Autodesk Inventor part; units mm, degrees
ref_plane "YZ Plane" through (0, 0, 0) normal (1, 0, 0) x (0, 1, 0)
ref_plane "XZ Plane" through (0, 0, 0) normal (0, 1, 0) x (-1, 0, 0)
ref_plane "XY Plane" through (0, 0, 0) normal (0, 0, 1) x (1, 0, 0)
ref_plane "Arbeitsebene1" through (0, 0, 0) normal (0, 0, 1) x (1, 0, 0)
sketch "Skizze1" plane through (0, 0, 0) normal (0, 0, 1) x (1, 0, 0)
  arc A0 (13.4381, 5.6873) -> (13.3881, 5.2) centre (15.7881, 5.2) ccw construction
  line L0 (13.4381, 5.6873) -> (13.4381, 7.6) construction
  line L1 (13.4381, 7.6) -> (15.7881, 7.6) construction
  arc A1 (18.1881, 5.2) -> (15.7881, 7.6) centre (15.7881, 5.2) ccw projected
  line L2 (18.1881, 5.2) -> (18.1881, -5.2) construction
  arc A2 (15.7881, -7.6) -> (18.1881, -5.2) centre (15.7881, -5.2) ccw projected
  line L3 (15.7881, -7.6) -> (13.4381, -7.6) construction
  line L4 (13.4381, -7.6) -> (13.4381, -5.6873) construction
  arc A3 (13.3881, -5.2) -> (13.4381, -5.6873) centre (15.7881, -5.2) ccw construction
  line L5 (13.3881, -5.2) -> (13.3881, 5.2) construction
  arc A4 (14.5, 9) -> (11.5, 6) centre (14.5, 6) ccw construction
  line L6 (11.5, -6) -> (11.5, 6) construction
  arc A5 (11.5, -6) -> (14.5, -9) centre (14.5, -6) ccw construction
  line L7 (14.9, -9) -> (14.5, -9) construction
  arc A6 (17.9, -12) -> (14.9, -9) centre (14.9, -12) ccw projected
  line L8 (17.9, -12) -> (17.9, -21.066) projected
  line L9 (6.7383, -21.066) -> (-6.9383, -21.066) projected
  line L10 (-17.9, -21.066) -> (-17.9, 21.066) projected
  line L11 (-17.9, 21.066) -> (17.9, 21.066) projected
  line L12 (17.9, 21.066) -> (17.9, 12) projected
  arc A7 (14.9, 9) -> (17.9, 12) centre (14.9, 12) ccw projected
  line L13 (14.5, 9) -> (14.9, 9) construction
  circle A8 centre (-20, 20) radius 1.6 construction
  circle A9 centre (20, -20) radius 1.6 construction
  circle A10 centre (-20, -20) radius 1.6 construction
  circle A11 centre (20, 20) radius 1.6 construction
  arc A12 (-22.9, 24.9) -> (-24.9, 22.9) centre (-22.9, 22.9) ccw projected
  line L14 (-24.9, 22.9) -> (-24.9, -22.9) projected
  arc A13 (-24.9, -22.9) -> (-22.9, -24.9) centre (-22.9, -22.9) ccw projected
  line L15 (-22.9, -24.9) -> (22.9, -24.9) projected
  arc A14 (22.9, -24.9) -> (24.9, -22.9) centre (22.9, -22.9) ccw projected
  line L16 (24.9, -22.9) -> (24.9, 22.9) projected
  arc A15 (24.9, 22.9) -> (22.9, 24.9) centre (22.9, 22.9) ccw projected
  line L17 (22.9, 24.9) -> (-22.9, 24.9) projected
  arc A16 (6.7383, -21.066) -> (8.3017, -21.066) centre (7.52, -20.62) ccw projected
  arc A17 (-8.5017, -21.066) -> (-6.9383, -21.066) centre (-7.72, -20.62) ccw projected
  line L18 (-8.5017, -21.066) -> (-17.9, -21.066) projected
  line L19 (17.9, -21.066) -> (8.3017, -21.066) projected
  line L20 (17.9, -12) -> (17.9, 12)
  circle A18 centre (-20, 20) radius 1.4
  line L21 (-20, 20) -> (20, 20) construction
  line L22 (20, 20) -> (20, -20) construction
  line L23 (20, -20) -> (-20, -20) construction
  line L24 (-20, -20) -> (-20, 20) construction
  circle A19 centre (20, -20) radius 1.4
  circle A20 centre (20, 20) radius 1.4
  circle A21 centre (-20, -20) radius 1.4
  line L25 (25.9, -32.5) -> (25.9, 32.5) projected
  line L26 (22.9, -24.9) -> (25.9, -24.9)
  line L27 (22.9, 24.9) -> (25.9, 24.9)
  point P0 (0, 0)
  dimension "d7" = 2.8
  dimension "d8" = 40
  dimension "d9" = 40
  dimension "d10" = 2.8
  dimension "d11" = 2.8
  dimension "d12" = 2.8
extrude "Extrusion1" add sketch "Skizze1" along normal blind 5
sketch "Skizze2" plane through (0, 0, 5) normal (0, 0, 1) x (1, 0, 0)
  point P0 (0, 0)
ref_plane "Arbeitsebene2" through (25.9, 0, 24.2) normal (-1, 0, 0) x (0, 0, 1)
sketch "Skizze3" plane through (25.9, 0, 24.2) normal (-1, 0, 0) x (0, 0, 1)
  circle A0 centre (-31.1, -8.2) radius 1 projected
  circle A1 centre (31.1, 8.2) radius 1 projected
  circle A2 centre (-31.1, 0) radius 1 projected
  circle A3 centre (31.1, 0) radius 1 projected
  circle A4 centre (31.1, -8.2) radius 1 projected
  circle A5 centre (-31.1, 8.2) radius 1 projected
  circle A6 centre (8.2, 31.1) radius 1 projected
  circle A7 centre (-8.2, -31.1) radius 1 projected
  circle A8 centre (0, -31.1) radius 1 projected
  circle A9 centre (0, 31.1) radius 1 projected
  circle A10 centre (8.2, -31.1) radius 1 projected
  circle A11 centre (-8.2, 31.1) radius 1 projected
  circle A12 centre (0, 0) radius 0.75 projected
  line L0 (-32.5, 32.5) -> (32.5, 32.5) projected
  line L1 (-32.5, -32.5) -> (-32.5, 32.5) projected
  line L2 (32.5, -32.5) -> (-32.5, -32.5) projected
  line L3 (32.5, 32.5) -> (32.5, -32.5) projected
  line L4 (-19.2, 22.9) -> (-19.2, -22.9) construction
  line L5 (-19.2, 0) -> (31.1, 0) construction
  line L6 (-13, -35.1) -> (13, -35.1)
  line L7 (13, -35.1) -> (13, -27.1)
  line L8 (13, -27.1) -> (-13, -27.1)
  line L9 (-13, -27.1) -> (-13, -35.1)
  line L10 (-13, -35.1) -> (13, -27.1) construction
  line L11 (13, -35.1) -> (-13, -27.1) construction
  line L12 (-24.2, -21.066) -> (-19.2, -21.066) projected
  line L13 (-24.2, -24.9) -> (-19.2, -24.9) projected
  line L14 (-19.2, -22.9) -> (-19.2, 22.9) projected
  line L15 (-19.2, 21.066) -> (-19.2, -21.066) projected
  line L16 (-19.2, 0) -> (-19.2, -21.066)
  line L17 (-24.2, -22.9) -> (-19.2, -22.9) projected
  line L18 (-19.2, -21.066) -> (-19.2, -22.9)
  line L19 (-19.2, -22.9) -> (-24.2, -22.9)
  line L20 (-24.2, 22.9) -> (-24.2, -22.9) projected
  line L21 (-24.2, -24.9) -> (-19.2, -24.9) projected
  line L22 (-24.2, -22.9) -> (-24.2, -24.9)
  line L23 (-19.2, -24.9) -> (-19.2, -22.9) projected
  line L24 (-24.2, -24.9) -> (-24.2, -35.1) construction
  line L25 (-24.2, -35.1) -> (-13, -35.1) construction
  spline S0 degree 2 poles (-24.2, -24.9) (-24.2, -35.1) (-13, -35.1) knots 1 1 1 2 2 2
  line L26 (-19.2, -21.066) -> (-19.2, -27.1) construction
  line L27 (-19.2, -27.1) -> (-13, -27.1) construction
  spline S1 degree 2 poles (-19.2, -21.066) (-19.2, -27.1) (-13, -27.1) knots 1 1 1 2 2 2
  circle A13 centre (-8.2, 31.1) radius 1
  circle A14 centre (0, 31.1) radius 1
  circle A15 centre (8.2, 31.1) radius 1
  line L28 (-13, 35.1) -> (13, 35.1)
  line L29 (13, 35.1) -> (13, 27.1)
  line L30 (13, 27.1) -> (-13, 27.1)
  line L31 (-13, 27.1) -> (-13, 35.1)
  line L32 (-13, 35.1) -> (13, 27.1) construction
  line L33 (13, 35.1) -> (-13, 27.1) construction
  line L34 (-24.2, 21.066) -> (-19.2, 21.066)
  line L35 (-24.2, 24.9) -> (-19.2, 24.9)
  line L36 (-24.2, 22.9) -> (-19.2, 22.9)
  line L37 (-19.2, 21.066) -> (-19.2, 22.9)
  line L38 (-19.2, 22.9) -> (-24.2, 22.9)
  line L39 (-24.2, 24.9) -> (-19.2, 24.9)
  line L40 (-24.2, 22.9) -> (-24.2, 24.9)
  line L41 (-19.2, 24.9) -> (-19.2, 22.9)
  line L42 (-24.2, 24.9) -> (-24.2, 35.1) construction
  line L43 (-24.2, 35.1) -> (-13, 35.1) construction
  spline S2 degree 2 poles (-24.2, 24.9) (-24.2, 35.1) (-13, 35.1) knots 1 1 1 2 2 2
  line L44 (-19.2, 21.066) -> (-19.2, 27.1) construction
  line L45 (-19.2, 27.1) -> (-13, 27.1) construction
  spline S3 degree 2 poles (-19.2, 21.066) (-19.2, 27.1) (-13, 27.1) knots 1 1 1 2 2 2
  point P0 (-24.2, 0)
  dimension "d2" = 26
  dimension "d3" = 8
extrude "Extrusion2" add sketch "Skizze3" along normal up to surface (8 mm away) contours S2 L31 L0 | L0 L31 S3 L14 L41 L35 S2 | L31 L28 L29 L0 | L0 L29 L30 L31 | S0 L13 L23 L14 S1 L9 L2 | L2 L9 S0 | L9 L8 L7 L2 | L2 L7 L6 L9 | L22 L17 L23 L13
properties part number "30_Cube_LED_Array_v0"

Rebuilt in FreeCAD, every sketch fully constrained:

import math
import FreeCAD as App
import Part
import Sketcher

doc = App.newDocument("Part")
params = doc.addObject("Spreadsheet::Sheet", "Params")
for row, (alias, value) in enumerate([
    ("sketch1_diameter", "2.8 mm"),
    ("sketch1_radius", "2 mm"),
    ("sketch1_radius2", "0.9 mm"),
    ("sketch1_width", "48.8 mm"),
    ("sketch1_width2", "35.8 mm"),
    ("pad1_length", "5 mm"),
    ("sketch2_height", "26 mm"),
    ("sketch2_diameter", "2 mm"),
    ("sketch2_width", "2 mm"),
    ("pad2_length", "8 mm"),
], start=1):
    params.set(f"A{row}", alias)
    params.set(f"B{row}", "=" + value)
    params.setAlias(f"B{row}", alias)

body = doc.addObject("PartDesign::Body", "Body")

# Sketch on XY plane
sketch1 = body.newObject("Sketcher::SketchObject", "Sketch")
sketch1.AttachmentSupport = (doc.getObject("XY_Plane"), [""])
sketch1.MapMode = "FlatFace"
sketch1.addGeometry(Part.ArcOfCircle(Part.Circle(App.Vector(-22.9, 22.9, 0), App.Vector(0, 0, 1), 2), math.radians(90), math.radians(180)), False)
sketch1.addGeometry(Part.LineSegment(App.Vector(-24.9, 22.9, 0), App.Vector(-24.9, -22.9, 0)), False)
sketch1.addGeometry(Part.ArcOfCircle(Part.Circle(App.Vector(-22.9, -22.9, 0), App.Vector(0, 0, 1), 2), math.radians(180), math.radians(270)), False)
sketch1.addGeometry(Part.LineSegment(App.Vector(-22.9, -24.9, 0), App.Vector(25.9, -24.9, 0)), False)
sketch1.addGeometry(Part.LineSegment(App.Vector(25.9, -24.9, 0), App.Vector(25.9, 24.9, 0)), False)
sketch1.addGeometry(Part.LineSegment(App.Vector(25.9, 24.9, 0), App.Vector(-22.9, 24.9, 0)), False)
sketch1.addGeometry(Part.Circle(App.Vector(-20, -20, 0), App.Vector(0, 0, 1), 1.4), False)
sketch1.addGeometry(Part.LineSegment(App.Vector(17.9, -21.1, 0), App.Vector(8.3, -21.1, 0)), False)
sketch1.addGeometry(Part.ArcOfCircle(Part.Circle(App.Vector(7.5, -20.6, 0), App.Vector(0, 0, 1), 0.9), math.radians(-150), math.radians(-30)), False)
sketch1.addGeometry(Part.LineSegment(App.Vector(6.7, -21.1, 0), App.Vector(-6.9, -21.1, 0)), False)
sketch1.addGeometry(Part.ArcOfCircle(Part.Circle(App.Vector(-7.7, -20.6, 0), App.Vector(0, 0, 1), 0.9), math.radians(-150), math.radians(-30)), False)
sketch1.addGeometry(Part.LineSegment(App.Vector(-8.5, -21.1, 0), App.Vector(-17.9, -21.1, 0)), False)
sketch1.addGeometry(Part.LineSegment(App.Vector(-17.9, -21.1, 0), App.Vector(-17.9, 21.1, 0)), False)
sketch1.addGeometry(Part.LineSegment(App.Vector(-17.9, 21.1, 0), App.Vector(17.9, 21.1, 0)), False)
sketch1.addGeometry(Part.LineSegment(App.Vector(17.9, 21.1, 0), App.Vector(17.9, -21.1, 0)), False)
sketch1.addGeometry(Part.Circle(App.Vector(20, -20, 0), App.Vector(0, 0, 1), 1.4), False)
sketch1.addGeometry(Part.Circle(App.Vector(-20, 20, 0), App.Vector(0, 0, 1), 1.4), False)
sketch1.addGeometry(Part.Circle(App.Vector(20, 20, 0), App.Vector(0, 0, 1), 1.4), False)
sketch1.addConstraint(Sketcher.Constraint("Tangent", 0, 2, 1, 1))
sketch1.addConstraint(Sketcher.Constraint("Tangent", 1, 2, 2, 1))
sketch1.addConstraint(Sketcher.Constraint("Tangent", 2, 2, 3, 1))
sketch1.addConstraint(Sketcher.Constraint("Coincident", 3, 2, 4, 1))
sketch1.addConstraint(Sketcher.Constraint("Coincident", 4, 2, 5, 1))
sketch1.addConstraint(Sketcher.Constraint("Tangent", 5, 2, 0, 1))
sketch1.addConstraint(Sketcher.Constraint("Coincident", 7, 2, 8, 2))
sketch1.addConstraint(Sketcher.Constraint("Coincident", 8, 1, 9, 1))
sketch1.addConstraint(Sketcher.Constraint("Coincident", 9, 2, 10, 2))
sketch1.addConstraint(Sketcher.Constraint("Coincident", 10, 1, 11, 1))
sketch1.addConstraint(Sketcher.Constraint("Coincident", 11, 2, 12, 1))
sketch1.addConstraint(Sketcher.Constraint("Coincident", 12, 2, 13, 1))
sketch1.addConstraint(Sketcher.Constraint("Coincident", 13, 2, 14, 1))
sketch1.addConstraint(Sketcher.Constraint("Coincident", 14, 2, 7, 1))
sketch1.addConstraint(Sketcher.Constraint("Vertical", 1))
sketch1.addConstraint(Sketcher.Constraint("Horizontal", 3))
sketch1.addConstraint(Sketcher.Constraint("Vertical", 4))
sketch1.addConstraint(Sketcher.Constraint("Horizontal", 5))
sketch1.addConstraint(Sketcher.Constraint("Horizontal", 7))
sketch1.addConstraint(Sketcher.Constraint("Horizontal", 9))
sketch1.addConstraint(Sketcher.Constraint("Horizontal", 11))
sketch1.addConstraint(Sketcher.Constraint("Vertical", 12))
sketch1.addConstraint(Sketcher.Constraint("Horizontal", 13))
sketch1.addConstraint(Sketcher.Constraint("Vertical", 14))
sketch1.addConstraint(Sketcher.Constraint("Equal", 0, 2))
sketch1.addConstraint(Sketcher.Constraint("Equal", 8, 10))
sketch1.addConstraint(Sketcher.Constraint("Equal", 6, 15))
sketch1.addConstraint(Sketcher.Constraint("Equal", 15, 16))
sketch1.addConstraint(Sketcher.Constraint("Equal", 16, 17))
sketch1.addConstraint(Sketcher.Constraint("Symmetric", 15, 3, 16, 3, -1, 1))
sketch1.addConstraint(Sketcher.Constraint("Symmetric", 6, 3, 17, 3, -1, 1))
sketch1.addConstraint(Sketcher.Constraint("Symmetric", 11, 2, 13, 2, -1, 1))
sketch1.addConstraint(Sketcher.Constraint("Symmetric", 6, 3, 15, 3, -2))
sketch1.addConstraint(Sketcher.Constraint("Horizontal", 8, 3, 10, 3))
sketch1.addConstraint(Sketcher.Constraint("Horizontal", 7, 2, 8, 1))
sketch1.addConstraint(Sketcher.Constraint("Horizontal", 9, 2, 10, 1))
sketch1.addConstraint(Sketcher.Constraint("Diameter", 6, 2.8))
sketch1.addConstraint(Sketcher.Constraint("Radius", 0, 2.0))
sketch1.addConstraint(Sketcher.Constraint("DistanceX", 6, 3, 15, 3, 40.0))
sketch1.addConstraint(Sketcher.Constraint("DistanceY", 6, 3, 16, 3, 40.0))
sketch1.addConstraint(Sketcher.Constraint("Radius", 8, 0.9))
sketch1.addConstraint(Sketcher.Constraint("DistanceX", 3, 1, 3, 2, 48.8))
sketch1.addConstraint(Sketcher.Constraint("DistanceX", 13, 1, 13, 2, 35.8))
sketch1.addConstraint(Sketcher.Constraint("DistanceY", 1, 2, 1, 1, 45.8))
sketch1.addConstraint(Sketcher.Constraint("DistanceX", 2, 3, 11, 2, 5.0))
sketch1.addConstraint(Sketcher.Constraint("DistanceY", -1, 1, 0, 3, 22.9))
sketch1.addConstraint(Sketcher.Constraint("DistanceY", 12, 1, 12, 2, 42.132))
sketch1.addConstraint(Sketcher.Constraint("DistanceX", -1, 1, 8, 3, 7.52))
sketch1.addConstraint(Sketcher.Constraint("DistanceY", 8, 3, -1, 1, 20.62))
sketch1.addConstraint(Sketcher.Constraint("DistanceX", 10, 3, -1, 1, 7.72))
sketch1.setExpression("Constraints[36]", "Params.sketch1_diameter")
sketch1.setExpression("Constraints[37]", "Params.sketch1_radius")
sketch1.setExpression("Constraints[40]", "Params.sketch1_radius2")
sketch1.setExpression("Constraints[41]", "Params.sketch1_width")
sketch1.setExpression("Constraints[42]", "Params.sketch1_width2")
pad1 = body.newObject("PartDesign::Pad", "Pad")
pad1.Profile = sketch1
pad1.setExpression("Length", "Params.pad1_length")

# Sketch on YZ plane
sketch2 = body.newObject("Sketcher::SketchObject", "Sketch001")
sketch2.AttachmentSupport = (doc.getObject("YZ_Plane"), [""])
sketch2.MapMode = "FlatFace"
sketch2.AttachmentOffset = App.Placement(App.Vector(0, 0, 25.9), App.Rotation())
sketch2.addGeometry(Part.BSplineCurve([App.Vector(32.5, 2.745631, 0), App.Vector(35.1, 5.545365, 0), App.Vector(35.1, 11.2, 0)], [3, 3], [1.495121836, 2], False, 2, [1, 1, 1], False), False)
sketch2.addGeometry(Part.BSplineCurve([App.Vector(24.9, 0, 0), App.Vector(29.950243, 0, 0), App.Vector(32.5, 2.745631, 0)], [3, 3], [1, 1.495121836], False, 2, [1, 1, 1], False), False)
sketch2.addGeometry(Part.LineSegment(App.Vector(24.9, 0, 0), App.Vector(24.9, 5, 0)), False)
sketch2.addGeometry(Part.LineSegment(App.Vector(24.9, 5, 0), App.Vector(21.066, 5, 0)), False)
sketch2.addGeometry(Part.BSplineCurve([App.Vector(21.066, 5, 0), App.Vector(27.1, 5, 0), App.Vector(27.1, 11.2, 0)], [3, 3], [1, 2], False, 2, [1, 1, 1], False), False)
sketch2.addGeometry(Part.LineSegment(App.Vector(27.1, 11.2, 0), App.Vector(27.1, 37.2, 0)), False)
sketch2.addGeometry(Part.LineSegment(App.Vector(27.1, 37.2, 0), App.Vector(35.1, 37.2, 0)), False)
sketch2.addGeometry(Part.LineSegment(App.Vector(35.1, 37.2, 0), App.Vector(35.1, 11.2, 0)), False)
sketch2.addGeometry(Part.Circle(App.Vector(31.1, 32.4, 0), App.Vector(0, 0, 1), 1), False)
sketch2.addGeometry(Part.Circle(App.Vector(31.1, 24.2, 0), App.Vector(0, 0, 1), 1), False)
sketch2.addGeometry(Part.Circle(App.Vector(31.1, 16, 0), App.Vector(0, 0, 1), 1), False)
sketch2.addGeometry(Part.BSplineCurve([App.Vector(-24.9, 0, 0), App.Vector(-29.950243, 0, 0), App.Vector(-32.5, 2.745631, 0)], [3, 3], [1, 1.495121836], False, 2, [1, 1, 1], False), False)
sketch2.addGeometry(Part.BSplineCurve([App.Vector(-32.5, 2.745631, 0), App.Vector(-35.1, 5.545365, 0), App.Vector(-35.1, 11.2, 0)], [3, 3], [1.495121836, 2], False, 2, [1, 1, 1], False), False)
sketch2.addGeometry(Part.LineSegment(App.Vector(-35.1, 11.2, 0), App.Vector(-35.1, 37.2, 0)), False)
sketch2.addGeometry(Part.LineSegment(App.Vector(-35.1, 37.2, 0), App.Vector(-27.1, 37.2, 0)), False)
sketch2.addGeometry(Part.LineSegment(App.Vector(-27.1, 37.2, 0), App.Vector(-27.1, 11.2, 0)), False)
sketch2.addGeometry(Part.BSplineCurve([App.Vector(-21.066, 5, 0), App.Vector(-27.1, 5, 0), App.Vector(-27.1, 11.2, 0)], [3, 3], [1, 2], False, 2, [1, 1, 1], False), False)
sketch2.addGeometry(Part.LineSegment(App.Vector(-21.066, 5, 0), App.Vector(-22.9, 5, 0)), False)
sketch2.addGeometry(Part.LineSegment(App.Vector(-22.9, 5, 0), App.Vector(-22.9, 0, 0)), False)
sketch2.addGeometry(Part.LineSegment(App.Vector(-22.9, 0, 0), App.Vector(-24.9, 0, 0)), False)
sketch2.addGeometry(Part.Circle(App.Vector(-31.1, 32.4, 0), App.Vector(0, 0, 1), 1), False)
sketch2.addGeometry(Part.Circle(App.Vector(-31.1, 16, 0), App.Vector(0, 0, 1), 1), False)
sketch2.addGeometry(Part.Circle(App.Vector(-31.1, 24.2, 0), App.Vector(0, 0, 1), 1), False)
sketch2.addConstraint(Sketcher.Constraint("Block", 0))
sketch2.addConstraint(Sketcher.Constraint("Block", 1))
sketch2.addConstraint(Sketcher.Constraint("Block", 4))
sketch2.addConstraint(Sketcher.Constraint("Block", 11))
sketch2.addConstraint(Sketcher.Constraint("Block", 12))
sketch2.addConstraint(Sketcher.Constraint("Block", 16))
sketch2.addConstraint(Sketcher.Constraint("Coincident", 1, 1, 2, 1))
sketch2.addConstraint(Sketcher.Constraint("Coincident", 2, 2, 3, 1))
sketch2.addConstraint(Sketcher.Constraint("Coincident", 3, 2, 4, 1))
sketch2.addConstraint(Sketcher.Constraint("Coincident", 4, 2, 5, 1))
sketch2.addConstraint(Sketcher.Constraint("Coincident", 5, 2, 6, 1))
sketch2.addConstraint(Sketcher.Constraint("Coincident", 6, 2, 7, 1))
sketch2.addConstraint(Sketcher.Constraint("Coincident", 7, 2, 0, 2))
sketch2.addConstraint(Sketcher.Constraint("Coincident", 12, 2, 13, 1))
sketch2.addConstraint(Sketcher.Constraint("Coincident", 13, 2, 14, 1))
sketch2.addConstraint(Sketcher.Constraint("Coincident", 14, 2, 15, 1))
sketch2.addConstraint(Sketcher.Constraint("Coincident", 15, 2, 16, 2))
sketch2.addConstraint(Sketcher.Constraint("Coincident", 16, 1, 17, 1))
sketch2.addConstraint(Sketcher.Constraint("Coincident", 17, 2, 18, 1))
sketch2.addConstraint(Sketcher.Constraint("Coincident", 18, 2, 19, 1))
sketch2.addConstraint(Sketcher.Constraint("Coincident", 19, 2, 11, 1))
sketch2.addConstraint(Sketcher.Constraint("Vertical", 2))
sketch2.addConstraint(Sketcher.Constraint("Horizontal", 3))
sketch2.addConstraint(Sketcher.Constraint("Vertical", 5))
sketch2.addConstraint(Sketcher.Constraint("Horizontal", 6))
sketch2.addConstraint(Sketcher.Constraint("Vertical", 7))
sketch2.addConstraint(Sketcher.Constraint("Vertical", 13))
sketch2.addConstraint(Sketcher.Constraint("Horizontal", 14))
sketch2.addConstraint(Sketcher.Constraint("Vertical", 15))
sketch2.addConstraint(Sketcher.Constraint("Horizontal", 17))
sketch2.addConstraint(Sketcher.Constraint("Vertical", 18))
sketch2.addConstraint(Sketcher.Constraint("Horizontal", 19))
sketch2.addConstraint(Sketcher.Constraint("Equal", 8, 9))
sketch2.addConstraint(Sketcher.Constraint("Equal", 9, 10))
sketch2.addConstraint(Sketcher.Constraint("Equal", 10, 20))
sketch2.addConstraint(Sketcher.Constraint("Equal", 20, 21))
sketch2.addConstraint(Sketcher.Constraint("Equal", 21, 22))
sketch2.addConstraint(Sketcher.Constraint("Symmetric", 8, 3, 20, 3, -2))
sketch2.addConstraint(Sketcher.Constraint("Symmetric", 10, 3, 21, 3, -2))
sketch2.addConstraint(Sketcher.Constraint("Symmetric", 9, 3, 22, 3, -2))
sketch2.addConstraint(Sketcher.Constraint("Horizontal", 6, 2, 13, 2))
sketch2.addConstraint(Sketcher.Constraint("Vertical", 8, 3, 9, 3))
sketch2.addConstraint(Sketcher.Constraint("Vertical", 9, 3, 10, 3))
sketch2.addConstraint(Sketcher.Constraint("DistanceY", 5, 1, 5, 2, 26.0))
sketch2.addConstraint(Sketcher.Constraint("Diameter", 8, 2.0))
sketch2.addConstraint(Sketcher.Constraint("DistanceX", 19, 2, 19, 1, 2.0))
sketch2.addConstraint(Sketcher.Constraint("DistanceY", -1, 1, 10, 3, 16.0))
sketch2.addConstraint(Sketcher.Constraint("DistanceX", 21, 3, 2, 2, 56.0))
sketch2.addConstraint(Sketcher.Constraint("DistanceY", 9, 3, 5, 2, 13.0))
sketch2.addConstraint(Sketcher.Constraint("DistanceY", -1, 1, 8, 3, 32.4))
sketch2.setExpression("Constraints[43]", "Params.sketch2_height")
sketch2.setExpression("Constraints[44]", "Params.sketch2_diameter")
sketch2.setExpression("Constraints[45]", "Params.sketch2_width")
pad2 = body.newObject("PartDesign::Pad", "Pad001")
pad2.Profile = sketch2
pad2.setExpression("Length", "Params.pad2_length")
pad2.Reversed = True

doc.recompute()
